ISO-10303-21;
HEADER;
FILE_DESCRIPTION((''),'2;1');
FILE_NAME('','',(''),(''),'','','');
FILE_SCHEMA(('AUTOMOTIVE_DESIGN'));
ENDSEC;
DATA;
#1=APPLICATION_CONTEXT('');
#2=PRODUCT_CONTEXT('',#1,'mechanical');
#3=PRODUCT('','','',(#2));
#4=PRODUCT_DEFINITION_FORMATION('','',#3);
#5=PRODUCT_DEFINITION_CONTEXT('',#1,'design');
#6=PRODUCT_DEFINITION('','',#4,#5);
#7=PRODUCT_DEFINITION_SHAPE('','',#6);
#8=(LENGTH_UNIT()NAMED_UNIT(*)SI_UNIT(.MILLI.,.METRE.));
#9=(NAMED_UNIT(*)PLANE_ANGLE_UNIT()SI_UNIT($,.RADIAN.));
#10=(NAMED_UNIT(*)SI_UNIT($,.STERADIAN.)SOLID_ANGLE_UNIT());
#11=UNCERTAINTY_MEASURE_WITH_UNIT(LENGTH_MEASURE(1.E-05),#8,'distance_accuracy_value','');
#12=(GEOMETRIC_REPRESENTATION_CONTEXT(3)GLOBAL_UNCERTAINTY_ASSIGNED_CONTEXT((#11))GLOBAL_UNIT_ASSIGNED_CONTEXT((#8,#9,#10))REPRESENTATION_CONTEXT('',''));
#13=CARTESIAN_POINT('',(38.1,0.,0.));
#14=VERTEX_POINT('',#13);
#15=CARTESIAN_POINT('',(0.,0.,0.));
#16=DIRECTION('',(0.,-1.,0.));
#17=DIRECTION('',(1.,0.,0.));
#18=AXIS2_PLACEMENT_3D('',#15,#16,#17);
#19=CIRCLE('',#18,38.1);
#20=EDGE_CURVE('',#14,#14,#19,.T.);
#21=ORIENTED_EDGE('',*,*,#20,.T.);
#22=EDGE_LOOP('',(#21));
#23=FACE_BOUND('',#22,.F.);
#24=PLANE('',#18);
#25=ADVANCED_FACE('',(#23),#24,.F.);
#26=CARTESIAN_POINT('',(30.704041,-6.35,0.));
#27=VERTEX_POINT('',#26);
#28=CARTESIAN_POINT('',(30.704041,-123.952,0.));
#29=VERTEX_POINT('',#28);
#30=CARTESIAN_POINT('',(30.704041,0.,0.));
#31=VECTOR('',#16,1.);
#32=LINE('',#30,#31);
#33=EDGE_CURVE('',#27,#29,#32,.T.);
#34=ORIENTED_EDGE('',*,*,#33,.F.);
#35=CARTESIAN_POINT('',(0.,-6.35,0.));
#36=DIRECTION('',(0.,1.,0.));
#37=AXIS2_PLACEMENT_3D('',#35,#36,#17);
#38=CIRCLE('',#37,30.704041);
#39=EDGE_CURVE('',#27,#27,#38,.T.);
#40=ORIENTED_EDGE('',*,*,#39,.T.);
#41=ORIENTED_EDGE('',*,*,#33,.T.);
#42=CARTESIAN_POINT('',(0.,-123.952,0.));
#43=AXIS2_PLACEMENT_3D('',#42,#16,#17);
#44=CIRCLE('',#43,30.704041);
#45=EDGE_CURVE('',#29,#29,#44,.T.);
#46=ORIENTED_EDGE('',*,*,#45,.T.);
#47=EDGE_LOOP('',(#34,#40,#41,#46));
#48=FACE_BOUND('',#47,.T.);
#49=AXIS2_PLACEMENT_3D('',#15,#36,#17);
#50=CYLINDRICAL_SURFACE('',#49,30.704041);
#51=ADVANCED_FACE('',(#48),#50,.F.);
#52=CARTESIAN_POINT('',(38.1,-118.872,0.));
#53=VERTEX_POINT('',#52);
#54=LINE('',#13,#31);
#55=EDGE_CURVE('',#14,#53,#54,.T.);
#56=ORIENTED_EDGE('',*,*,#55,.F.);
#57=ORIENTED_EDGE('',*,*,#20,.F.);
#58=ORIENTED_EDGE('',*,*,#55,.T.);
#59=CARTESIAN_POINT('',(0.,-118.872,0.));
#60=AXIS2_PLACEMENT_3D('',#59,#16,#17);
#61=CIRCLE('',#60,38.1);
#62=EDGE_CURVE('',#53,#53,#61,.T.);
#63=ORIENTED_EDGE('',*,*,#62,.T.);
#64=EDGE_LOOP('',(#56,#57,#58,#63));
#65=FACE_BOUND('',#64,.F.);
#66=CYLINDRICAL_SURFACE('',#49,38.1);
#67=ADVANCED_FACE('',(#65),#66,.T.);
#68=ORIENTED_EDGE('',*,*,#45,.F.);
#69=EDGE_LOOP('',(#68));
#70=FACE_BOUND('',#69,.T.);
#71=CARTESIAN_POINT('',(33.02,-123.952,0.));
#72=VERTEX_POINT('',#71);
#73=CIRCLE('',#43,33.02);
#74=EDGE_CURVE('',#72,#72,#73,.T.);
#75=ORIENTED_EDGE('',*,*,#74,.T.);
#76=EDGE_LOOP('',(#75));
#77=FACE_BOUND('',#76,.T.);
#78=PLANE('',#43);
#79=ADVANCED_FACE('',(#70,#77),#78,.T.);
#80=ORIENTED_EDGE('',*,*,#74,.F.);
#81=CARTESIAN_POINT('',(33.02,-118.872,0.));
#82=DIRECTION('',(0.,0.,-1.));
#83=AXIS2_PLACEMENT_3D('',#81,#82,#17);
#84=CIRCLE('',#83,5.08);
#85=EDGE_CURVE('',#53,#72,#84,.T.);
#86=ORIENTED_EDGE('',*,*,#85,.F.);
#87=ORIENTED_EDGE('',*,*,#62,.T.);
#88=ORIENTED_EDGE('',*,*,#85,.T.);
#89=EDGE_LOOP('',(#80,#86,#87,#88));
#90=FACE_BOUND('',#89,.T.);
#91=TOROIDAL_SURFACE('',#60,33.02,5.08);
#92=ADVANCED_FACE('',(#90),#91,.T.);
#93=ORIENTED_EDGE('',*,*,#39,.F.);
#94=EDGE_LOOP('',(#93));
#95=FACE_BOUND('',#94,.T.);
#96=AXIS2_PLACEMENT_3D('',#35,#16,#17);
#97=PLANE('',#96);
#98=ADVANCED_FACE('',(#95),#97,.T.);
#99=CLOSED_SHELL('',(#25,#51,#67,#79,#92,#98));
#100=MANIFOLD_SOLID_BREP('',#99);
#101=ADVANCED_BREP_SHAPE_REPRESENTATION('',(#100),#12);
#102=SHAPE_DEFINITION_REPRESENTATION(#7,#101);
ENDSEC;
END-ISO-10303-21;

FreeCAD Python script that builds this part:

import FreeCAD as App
import Part
import Sketcher

V = App.Vector
Q = App.Units.Quantity


def edges_at(feature, points):
    """Names of the edges that pass closest to the given points."""
    edges = feature.Shape.Edges
    near = lambda p: min(range(len(edges)), key=lambda i: edges[i].distToShape(Part.Vertex(*p))[0])
    return sorted({f"Edge{near(p) + 1}" for p in points})

doc = App.newDocument("Part")
body = doc.addObject("PartDesign::Body", "Body")

# Sketch on XZ plane
sketch1 = body.newObject("Sketcher::SketchObject", "Sketch")
sketch1.AttachmentSupport = (doc.getObject("XZ_Plane"), [""])
sketch1.MapMode = "FlatFace"
sketch1.addGeometry([
    Part.Circle(V(0, 0, 0), V(0, 0, 1), 38),
    Part.Circle(V(0, 0, 0), V(0, 0, 1), 31),
], False)
sketch1.addConstraint([
    Sketcher.Constraint("Coincident", 0, 3, -1, 1),
    Sketcher.Constraint("Coincident", 1, 3, -1, 1),
    Sketcher.Constraint("Diameter", 0, Q("3 in")),
    Sketcher.Constraint("Diameter", 1, 61.408082),
])
pad1 = body.newObject("PartDesign::Pad", "Pad")
pad1.Profile = sketch1
pad1.Length = Q("4.88 in")
doc.recompute()

fillet = body.newObject("PartDesign::Fillet", "Fillet")
fillet.Base = (pad1, edges_at(pad1, [(-38.1, -123.952, 0)]))
fillet.Radius = Q("0.2 in")

# Sketch on XZ plane
sketch2 = body.newObject("Sketcher::SketchObject", "Sketch001")
sketch2.AttachmentSupport = (doc.getObject("XZ_Plane"), [""])
sketch2.MapMode = "FlatFace"
sketch2.addGeometry(Part.Circle(V(0, 0, 0), V(0, 0, 1), 31), False)
sketch2.addConstraint([
    Sketcher.Constraint("Coincident", 0, 3, -1, 1),
    Sketcher.Constraint("Diameter", 0, 61.474784),
])
pad2 = body.newObject("PartDesign::Pad", "Pad001")
pad2.Profile = sketch2
pad2.Length = Q("0.25 in")

doc.recompute()
